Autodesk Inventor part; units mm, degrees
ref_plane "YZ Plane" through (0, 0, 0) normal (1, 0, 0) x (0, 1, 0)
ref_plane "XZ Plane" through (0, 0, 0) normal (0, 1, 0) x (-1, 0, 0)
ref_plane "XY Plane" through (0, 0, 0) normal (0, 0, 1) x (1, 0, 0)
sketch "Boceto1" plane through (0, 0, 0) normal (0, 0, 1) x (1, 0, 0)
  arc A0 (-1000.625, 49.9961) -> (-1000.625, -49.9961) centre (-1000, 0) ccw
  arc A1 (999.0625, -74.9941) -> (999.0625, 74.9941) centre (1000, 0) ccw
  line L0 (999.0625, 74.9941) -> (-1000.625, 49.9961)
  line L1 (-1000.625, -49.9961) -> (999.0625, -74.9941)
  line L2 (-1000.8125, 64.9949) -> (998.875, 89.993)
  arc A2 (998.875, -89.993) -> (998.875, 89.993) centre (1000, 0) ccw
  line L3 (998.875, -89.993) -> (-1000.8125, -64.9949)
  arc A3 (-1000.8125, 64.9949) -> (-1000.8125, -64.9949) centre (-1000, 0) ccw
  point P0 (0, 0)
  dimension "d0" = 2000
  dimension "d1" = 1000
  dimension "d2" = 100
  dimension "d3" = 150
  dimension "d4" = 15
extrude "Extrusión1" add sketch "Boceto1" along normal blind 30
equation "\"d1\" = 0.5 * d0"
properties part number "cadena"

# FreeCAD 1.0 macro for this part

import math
import FreeCAD as App
import Part
import Sketcher

V = App.Vector
Q = App.Units.Quantity

doc = App.newDocument("Part")
body = doc.addObject("PartDesign::Body", "Body")

sketch1 = body.newObject("Sketcher::SketchObject", "Sketch")
sketch1.AttachmentSupport = (doc.getObject("XY_Plane"), [""])
sketch1.MapMode = "FlatFace"
sketch1.addGeometry(Part.LineSegment(V(999, 90, 0), V(-1001, 65, 0)), False)
sketch1.addGeometry(Part.ArcOfCircle(Part.Circle(V(-1000, 0, 0), V(0, 0, 1), 65), math.radians(91), math.radians(269)), False)
sketch1.addGeometry(Part.LineSegment(V(-1001, -65, 0), V(999, -90, 0)), False)
sketch1.addGeometry(Part.ArcOfCircle(Part.Circle(V(1000, 0, 0), V(0, 0, 1), 90), math.radians(-91), math.radians(91)), False)
sketch1.addGeometry(Part.ArcOfCircle(Part.Circle(V(-1000, 0, 0), V(0, 0, 1), 50), math.radians(91), math.radians(269)), False)
sketch1.addGeometry(Part.LineSegment(V(-1001, 50, 0), V(999, 75, 0)), False)
sketch1.addGeometry(Part.ArcOfCircle(Part.Circle(V(1000, 0, 0), V(0, 0, 1), 75), math.radians(-91), math.radians(91)), False)
sketch1.addGeometry(Part.LineSegment(V(999, -75, 0), V(-1001, -50, 0)), False)
sketch1.addConstraint(Sketcher.Constraint("Tangent", 0, 2, 1, 1))
sketch1.addConstraint(Sketcher.Constraint("Tangent", 1, 2, 2, 1))
sketch1.addConstraint(Sketcher.Constraint("Tangent", 2, 2, 3, 1))
sketch1.addConstraint(Sketcher.Constraint("Tangent", 3, 2, 0, 1))
sketch1.addConstraint(Sketcher.Constraint("Tangent", 4, 1, 5, 1))
sketch1.addConstraint(Sketcher.Constraint("Tangent", 5, 2, 6, 2))
sketch1.addConstraint(Sketcher.Constraint("Tangent", 6, 1, 7, 1))
sketch1.addConstraint(Sketcher.Constraint("Tangent", 7, 2, 4, 2))
sketch1.addConstraint(Sketcher.Constraint("Coincident", 4, 3, 1, 3))
sketch1.addConstraint(Sketcher.Constraint("Coincident", 6, 3, 3, 3))
sketch1.addConstraint(Sketcher.Constraint("Symmetric", 1, 3, 3, 3, -1, 1))
sketch1.addConstraint(Sketcher.Constraint("PointOnObject", 1, 3, -1))
sketch1.addConstraint(Sketcher.Constraint("Parallel", 0, 5))
sketch1.addConstraint(Sketcher.Constraint("Radius", 4, Q("1.9685 in")))
sketch1.addConstraint(Sketcher.Constraint("Radius", 6, 75.0))
sketch1.addConstraint(Sketcher.Constraint("Radius", 3, Q("3.5433 in")))
sketch1.addConstraint(Sketcher.Constraint("DistanceX", 1, 3, -1, 1, 1000.0))
pad1 = body.newObject("PartDesign::Pad", "Pad")
pad1.Profile = sketch1
pad1.Length = Q("1.1811024 in")

doc.recompute()
